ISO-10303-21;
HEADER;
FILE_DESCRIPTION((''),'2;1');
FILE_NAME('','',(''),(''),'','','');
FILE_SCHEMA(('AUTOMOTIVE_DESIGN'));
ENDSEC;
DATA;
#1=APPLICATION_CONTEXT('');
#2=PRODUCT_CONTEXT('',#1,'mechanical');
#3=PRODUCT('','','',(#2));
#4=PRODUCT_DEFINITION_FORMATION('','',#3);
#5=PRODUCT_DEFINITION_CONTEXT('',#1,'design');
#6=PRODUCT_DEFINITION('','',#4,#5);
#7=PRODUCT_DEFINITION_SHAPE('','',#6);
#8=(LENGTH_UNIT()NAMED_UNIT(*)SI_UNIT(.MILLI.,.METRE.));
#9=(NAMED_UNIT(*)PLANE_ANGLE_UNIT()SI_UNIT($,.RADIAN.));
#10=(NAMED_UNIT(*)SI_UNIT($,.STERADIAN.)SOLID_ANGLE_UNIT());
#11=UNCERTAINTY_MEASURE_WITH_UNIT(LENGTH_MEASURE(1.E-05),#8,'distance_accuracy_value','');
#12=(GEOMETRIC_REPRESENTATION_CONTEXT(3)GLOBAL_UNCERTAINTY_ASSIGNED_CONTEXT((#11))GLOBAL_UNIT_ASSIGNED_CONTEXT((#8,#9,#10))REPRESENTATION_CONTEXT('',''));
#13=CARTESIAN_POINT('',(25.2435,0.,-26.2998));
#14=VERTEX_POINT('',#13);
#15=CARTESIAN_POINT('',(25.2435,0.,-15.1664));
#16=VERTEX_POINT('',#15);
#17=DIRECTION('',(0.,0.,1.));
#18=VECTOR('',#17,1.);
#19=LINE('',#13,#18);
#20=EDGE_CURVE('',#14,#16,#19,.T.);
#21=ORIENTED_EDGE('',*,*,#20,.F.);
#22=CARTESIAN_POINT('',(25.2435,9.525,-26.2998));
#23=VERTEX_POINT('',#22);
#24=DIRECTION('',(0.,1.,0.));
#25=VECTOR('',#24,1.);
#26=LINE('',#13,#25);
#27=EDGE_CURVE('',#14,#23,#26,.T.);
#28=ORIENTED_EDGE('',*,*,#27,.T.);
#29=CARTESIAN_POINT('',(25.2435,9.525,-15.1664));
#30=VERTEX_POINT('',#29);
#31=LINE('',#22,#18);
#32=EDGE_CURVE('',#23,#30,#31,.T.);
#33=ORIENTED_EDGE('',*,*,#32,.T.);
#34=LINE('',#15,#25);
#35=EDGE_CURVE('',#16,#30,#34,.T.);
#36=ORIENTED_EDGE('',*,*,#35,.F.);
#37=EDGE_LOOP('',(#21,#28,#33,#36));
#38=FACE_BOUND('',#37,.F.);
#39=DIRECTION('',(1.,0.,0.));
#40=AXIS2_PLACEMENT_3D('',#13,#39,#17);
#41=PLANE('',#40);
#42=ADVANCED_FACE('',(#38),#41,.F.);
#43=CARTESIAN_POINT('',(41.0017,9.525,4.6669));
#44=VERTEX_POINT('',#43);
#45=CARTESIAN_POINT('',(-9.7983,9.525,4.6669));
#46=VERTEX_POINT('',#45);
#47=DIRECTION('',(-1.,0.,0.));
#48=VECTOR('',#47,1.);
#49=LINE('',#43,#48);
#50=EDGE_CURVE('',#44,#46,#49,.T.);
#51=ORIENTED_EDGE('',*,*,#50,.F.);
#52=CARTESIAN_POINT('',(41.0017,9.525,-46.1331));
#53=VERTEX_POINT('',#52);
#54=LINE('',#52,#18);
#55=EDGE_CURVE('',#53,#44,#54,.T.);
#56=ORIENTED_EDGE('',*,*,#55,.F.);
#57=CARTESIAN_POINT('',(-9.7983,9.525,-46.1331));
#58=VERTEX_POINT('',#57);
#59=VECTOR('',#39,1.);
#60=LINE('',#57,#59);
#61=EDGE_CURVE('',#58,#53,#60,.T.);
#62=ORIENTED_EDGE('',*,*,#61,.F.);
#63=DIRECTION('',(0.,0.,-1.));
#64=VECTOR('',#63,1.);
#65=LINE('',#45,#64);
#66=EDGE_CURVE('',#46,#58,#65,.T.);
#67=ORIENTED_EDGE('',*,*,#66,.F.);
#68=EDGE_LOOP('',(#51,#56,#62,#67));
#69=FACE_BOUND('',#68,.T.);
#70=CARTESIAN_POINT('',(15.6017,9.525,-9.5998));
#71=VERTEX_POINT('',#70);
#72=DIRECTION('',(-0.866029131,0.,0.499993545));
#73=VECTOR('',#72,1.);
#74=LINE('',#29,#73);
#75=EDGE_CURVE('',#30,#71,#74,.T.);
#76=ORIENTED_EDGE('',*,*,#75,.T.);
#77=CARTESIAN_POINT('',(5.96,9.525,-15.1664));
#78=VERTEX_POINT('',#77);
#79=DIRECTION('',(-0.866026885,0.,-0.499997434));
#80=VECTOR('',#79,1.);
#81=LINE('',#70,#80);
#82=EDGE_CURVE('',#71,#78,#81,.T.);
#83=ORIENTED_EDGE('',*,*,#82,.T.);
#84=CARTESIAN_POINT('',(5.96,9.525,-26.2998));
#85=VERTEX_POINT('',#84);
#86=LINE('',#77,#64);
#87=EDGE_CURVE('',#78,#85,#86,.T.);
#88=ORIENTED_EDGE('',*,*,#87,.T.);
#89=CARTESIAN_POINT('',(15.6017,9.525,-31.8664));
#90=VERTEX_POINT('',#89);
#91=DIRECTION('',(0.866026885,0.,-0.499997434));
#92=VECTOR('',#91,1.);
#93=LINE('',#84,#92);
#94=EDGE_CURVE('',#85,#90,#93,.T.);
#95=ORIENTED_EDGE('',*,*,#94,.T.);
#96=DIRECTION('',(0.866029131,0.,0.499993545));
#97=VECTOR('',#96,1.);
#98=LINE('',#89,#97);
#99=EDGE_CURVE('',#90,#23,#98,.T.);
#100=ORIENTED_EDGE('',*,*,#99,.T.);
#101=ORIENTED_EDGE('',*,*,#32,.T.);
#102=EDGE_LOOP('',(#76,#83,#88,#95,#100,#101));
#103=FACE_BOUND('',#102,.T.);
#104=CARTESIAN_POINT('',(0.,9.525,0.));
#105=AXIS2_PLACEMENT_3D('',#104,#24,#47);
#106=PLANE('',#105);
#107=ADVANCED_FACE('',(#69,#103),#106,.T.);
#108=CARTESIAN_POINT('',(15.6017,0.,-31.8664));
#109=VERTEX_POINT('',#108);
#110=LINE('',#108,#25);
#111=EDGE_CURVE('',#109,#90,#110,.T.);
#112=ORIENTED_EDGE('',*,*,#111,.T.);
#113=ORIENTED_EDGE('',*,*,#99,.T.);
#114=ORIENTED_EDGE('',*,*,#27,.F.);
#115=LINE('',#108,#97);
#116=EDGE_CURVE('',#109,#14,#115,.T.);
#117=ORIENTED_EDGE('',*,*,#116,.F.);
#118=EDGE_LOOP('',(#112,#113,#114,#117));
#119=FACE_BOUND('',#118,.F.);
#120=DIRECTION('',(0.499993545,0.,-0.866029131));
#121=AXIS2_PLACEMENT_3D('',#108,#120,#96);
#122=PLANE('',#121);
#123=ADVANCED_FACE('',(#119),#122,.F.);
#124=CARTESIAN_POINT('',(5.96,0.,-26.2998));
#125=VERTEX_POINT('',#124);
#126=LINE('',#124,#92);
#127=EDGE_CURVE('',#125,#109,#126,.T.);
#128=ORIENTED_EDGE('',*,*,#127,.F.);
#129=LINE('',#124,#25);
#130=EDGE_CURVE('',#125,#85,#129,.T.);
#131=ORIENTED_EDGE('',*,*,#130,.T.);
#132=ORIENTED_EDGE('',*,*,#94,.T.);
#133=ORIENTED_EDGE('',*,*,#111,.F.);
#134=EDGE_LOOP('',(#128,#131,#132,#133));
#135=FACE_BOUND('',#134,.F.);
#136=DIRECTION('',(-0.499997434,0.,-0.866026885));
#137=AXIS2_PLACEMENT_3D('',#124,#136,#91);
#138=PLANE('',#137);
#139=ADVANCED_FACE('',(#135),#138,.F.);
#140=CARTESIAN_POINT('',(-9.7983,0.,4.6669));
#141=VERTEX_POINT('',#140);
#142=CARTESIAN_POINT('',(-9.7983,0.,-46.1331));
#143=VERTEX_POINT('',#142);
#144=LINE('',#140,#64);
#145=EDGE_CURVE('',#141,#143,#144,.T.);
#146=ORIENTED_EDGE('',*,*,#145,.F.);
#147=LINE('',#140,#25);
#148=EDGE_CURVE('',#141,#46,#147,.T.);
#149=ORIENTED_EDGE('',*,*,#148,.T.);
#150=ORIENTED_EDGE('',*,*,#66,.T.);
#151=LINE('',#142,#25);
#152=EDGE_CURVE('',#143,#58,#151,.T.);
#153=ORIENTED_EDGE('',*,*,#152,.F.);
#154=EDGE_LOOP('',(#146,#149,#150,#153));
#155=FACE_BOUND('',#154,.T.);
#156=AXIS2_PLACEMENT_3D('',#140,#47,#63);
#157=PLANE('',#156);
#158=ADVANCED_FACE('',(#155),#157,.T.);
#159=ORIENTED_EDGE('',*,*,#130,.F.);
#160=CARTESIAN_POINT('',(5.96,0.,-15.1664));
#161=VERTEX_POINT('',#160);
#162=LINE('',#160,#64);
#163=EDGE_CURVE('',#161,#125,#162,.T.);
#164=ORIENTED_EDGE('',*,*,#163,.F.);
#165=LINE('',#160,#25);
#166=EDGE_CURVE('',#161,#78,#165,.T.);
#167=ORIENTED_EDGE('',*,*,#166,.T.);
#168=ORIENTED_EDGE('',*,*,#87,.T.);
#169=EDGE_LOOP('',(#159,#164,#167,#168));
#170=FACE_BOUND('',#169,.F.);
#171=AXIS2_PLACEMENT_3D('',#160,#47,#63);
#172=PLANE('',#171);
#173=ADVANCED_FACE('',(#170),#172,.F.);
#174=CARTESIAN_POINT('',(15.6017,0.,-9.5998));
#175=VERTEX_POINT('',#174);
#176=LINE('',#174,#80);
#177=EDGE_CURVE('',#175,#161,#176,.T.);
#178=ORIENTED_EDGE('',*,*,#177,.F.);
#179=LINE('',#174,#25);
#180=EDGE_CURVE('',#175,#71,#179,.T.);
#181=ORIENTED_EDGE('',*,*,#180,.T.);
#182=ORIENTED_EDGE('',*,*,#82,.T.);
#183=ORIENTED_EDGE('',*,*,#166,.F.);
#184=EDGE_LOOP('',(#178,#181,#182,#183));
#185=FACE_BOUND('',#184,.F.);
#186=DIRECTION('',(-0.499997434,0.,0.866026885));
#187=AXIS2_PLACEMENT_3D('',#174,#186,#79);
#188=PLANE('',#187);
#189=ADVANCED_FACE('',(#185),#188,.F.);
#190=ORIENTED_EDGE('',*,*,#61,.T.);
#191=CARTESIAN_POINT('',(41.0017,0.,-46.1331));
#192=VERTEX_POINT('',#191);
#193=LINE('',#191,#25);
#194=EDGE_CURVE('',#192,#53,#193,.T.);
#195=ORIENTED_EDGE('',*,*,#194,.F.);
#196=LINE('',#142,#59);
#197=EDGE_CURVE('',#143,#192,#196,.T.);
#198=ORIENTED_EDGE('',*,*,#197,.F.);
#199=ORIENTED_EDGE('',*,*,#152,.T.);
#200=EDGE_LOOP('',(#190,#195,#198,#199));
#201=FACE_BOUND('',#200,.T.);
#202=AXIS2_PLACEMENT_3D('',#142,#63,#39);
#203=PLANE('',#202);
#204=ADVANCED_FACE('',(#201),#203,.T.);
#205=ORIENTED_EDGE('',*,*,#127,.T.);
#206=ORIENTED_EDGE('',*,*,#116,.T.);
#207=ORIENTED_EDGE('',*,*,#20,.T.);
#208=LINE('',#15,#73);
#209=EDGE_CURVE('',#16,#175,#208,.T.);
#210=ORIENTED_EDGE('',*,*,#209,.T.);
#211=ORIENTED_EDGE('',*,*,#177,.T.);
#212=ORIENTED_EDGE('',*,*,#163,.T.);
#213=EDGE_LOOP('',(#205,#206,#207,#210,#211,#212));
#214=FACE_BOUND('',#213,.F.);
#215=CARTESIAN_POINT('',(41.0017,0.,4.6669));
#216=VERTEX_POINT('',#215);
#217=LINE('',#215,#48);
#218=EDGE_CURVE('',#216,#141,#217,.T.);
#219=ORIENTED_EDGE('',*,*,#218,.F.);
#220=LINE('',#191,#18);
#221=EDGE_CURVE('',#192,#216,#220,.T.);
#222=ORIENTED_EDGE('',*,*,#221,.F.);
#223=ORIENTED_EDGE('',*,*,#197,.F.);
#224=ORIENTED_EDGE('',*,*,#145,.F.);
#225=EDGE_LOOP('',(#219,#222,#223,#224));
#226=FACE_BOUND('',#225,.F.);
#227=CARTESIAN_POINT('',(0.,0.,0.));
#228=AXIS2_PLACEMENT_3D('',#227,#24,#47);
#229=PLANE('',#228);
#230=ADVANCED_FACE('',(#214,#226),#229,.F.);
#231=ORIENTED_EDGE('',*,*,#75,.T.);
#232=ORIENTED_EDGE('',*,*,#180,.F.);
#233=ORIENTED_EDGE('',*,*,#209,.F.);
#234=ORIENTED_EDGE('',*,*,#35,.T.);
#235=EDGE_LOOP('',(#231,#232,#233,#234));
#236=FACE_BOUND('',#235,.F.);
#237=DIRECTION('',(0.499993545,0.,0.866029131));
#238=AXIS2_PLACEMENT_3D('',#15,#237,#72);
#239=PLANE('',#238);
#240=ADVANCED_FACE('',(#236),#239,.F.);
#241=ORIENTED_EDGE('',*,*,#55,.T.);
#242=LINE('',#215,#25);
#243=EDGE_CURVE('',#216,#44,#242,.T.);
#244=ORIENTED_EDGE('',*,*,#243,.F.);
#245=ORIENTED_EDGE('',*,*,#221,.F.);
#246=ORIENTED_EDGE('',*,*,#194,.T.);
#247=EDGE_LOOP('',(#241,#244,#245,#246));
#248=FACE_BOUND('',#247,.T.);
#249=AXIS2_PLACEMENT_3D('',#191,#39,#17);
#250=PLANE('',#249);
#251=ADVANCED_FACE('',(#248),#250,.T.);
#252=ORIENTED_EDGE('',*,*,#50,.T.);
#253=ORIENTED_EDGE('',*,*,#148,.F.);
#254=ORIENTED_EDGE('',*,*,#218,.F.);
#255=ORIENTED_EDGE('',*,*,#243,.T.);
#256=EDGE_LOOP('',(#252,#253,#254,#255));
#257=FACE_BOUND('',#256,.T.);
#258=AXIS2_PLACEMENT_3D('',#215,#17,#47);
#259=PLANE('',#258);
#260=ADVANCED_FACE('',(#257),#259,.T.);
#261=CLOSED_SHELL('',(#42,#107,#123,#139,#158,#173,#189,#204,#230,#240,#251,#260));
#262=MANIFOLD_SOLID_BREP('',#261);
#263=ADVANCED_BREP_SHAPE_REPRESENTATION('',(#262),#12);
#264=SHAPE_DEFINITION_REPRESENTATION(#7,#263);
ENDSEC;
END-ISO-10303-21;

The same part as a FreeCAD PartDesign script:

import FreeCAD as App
import Part
import Sketcher
Q = App.Units.Quantity

doc = App.newDocument("Part")
body = doc.addObject("PartDesign::Body", "Body")

sketch1 = doc.addObject("Sketcher::SketchObject", "Sketch")
body.addObject(sketch1)
sketch1.AttachmentSupport = (doc.XZ_Plane, [""])
sketch1.MapMode = "FlatFace"
sketch1.addGeometry(Part.LineSegment(App.Vector(-9.7983, -46.1331, 0), App.Vector(-9.7983, 4.6669, 0)), False)
sketch1.addGeometry(Part.LineSegment(App.Vector(-9.7983, 4.6669, 0), App.Vector(41.0017, 4.6669, 0)), False)
sketch1.addGeometry(Part.LineSegment(App.Vector(41.0017, 4.6669, 0), App.Vector(41.0017, -46.1331, 0)), False)
sketch1.addGeometry(Part.LineSegment(App.Vector(41.0017, -46.1331, 0), App.Vector(-9.7983, -46.1331, 0)), False)
sketch1.addGeometry(Part.LineSegment(App.Vector(5.96, -26.2998, 0), App.Vector(15.6017, -31.8664, 0)), False)
sketch1.addGeometry(Part.LineSegment(App.Vector(15.6017, -31.8664, 0), App.Vector(25.2435, -26.2998, 0)), False)
sketch1.addGeometry(Part.LineSegment(App.Vector(25.2435, -26.2998, 0), App.Vector(25.2435, -15.1664, 0)), False)
sketch1.addGeometry(Part.LineSegment(App.Vector(25.2435, -15.1664, 0), App.Vector(15.6017, -9.5998, 0)), False)
sketch1.addGeometry(Part.LineSegment(App.Vector(15.6017, -9.5998, 0), App.Vector(5.96, -15.1664, 0)), False)
sketch1.addGeometry(Part.LineSegment(App.Vector(5.96, -15.1664, 0), App.Vector(5.96, -26.2998, 0)), False)
sketch1.addConstraint(Sketcher.Constraint("Coincident", 0, 2, 1, 1))
sketch1.addConstraint(Sketcher.Constraint("Coincident", 1, 2, 2, 1))
sketch1.addConstraint(Sketcher.Constraint("Coincident", 2, 2, 3, 1))
sketch1.addConstraint(Sketcher.Constraint("Coincident", 3, 2, 0, 1))
sketch1.addConstraint(Sketcher.Constraint("Coincident", 4, 2, 5, 1))
sketch1.addConstraint(Sketcher.Constraint("Coincident", 5, 2, 6, 1))
sketch1.addConstraint(Sketcher.Constraint("Coincident", 6, 2, 7, 1))
sketch1.addConstraint(Sketcher.Constraint("Coincident", 7, 2, 8, 1))
sketch1.addConstraint(Sketcher.Constraint("Coincident", 8, 2, 9, 1))
sketch1.addConstraint(Sketcher.Constraint("Coincident", 9, 2, 4, 1))
sketch1.addConstraint(Sketcher.Constraint("Vertical", 0))
sketch1.addConstraint(Sketcher.Constraint("Horizontal", 1))
sketch1.addConstraint(Sketcher.Constraint("Vertical", 2))
sketch1.addConstraint(Sketcher.Constraint("Horizontal", 3))
sketch1.addConstraint(Sketcher.Constraint("Vertical", 6))
sketch1.addConstraint(Sketcher.Constraint("Vertical", 9))
sketch1.addConstraint(Sketcher.Constraint("Parallel", 4, 7))
sketch1.addConstraint(Sketcher.Constraint("Parallel", 5, 8))
sketch1.addConstraint(Sketcher.Constraint("Horizontal", 6, 2, 8, 2))
sketch1.addConstraint(Sketcher.Constraint("Horizontal", 5, 2, 9, 2))
sketch1.addConstraint(Sketcher.Constraint("Vertical", 4, 2, 7, 2))
sketch1.addConstraint(Sketcher.Constraint("Equal", 3, 0))
sketch1.addConstraint(Sketcher.Constraint("DistanceX", 1, 1, 1, 2, Q("2 in")))
sketch1.addConstraint(Sketcher.Constraint("Angle", 4, Q("-29.9998 deg")))
sketch1.addConstraint(Sketcher.Constraint("DistanceX", 4, 2, 2, 2, Q("1 in")))
sketch1.addConstraint(Sketcher.Constraint("DistanceY", 4, 2, 6, 2, Q("16.7 mm")))
sketch1.addConstraint(Sketcher.Constraint("DistanceY", 6, 1, 6, 2, Q("11.1334 mm")))
sketch1.addConstraint(Sketcher.Constraint("DistanceY", 6, 2, -1, 1, Q("0.5971 in")))
sketch1.addConstraint(Sketcher.Constraint("DistanceX", 0, 2, -1, 1, Q("9.7983 mm")))
sketch1.addConstraint(Sketcher.Constraint("DistanceY", -1, 1, 0, 2, Q("4.667 mm")))
pad1 = doc.addObject("PartDesign::Pad", "Pad")
body.addObject(pad1)
pad1.Profile = sketch1
pad1.Length = Q("0.375 in")
pad1.Reversed = True

doc.recompute()
